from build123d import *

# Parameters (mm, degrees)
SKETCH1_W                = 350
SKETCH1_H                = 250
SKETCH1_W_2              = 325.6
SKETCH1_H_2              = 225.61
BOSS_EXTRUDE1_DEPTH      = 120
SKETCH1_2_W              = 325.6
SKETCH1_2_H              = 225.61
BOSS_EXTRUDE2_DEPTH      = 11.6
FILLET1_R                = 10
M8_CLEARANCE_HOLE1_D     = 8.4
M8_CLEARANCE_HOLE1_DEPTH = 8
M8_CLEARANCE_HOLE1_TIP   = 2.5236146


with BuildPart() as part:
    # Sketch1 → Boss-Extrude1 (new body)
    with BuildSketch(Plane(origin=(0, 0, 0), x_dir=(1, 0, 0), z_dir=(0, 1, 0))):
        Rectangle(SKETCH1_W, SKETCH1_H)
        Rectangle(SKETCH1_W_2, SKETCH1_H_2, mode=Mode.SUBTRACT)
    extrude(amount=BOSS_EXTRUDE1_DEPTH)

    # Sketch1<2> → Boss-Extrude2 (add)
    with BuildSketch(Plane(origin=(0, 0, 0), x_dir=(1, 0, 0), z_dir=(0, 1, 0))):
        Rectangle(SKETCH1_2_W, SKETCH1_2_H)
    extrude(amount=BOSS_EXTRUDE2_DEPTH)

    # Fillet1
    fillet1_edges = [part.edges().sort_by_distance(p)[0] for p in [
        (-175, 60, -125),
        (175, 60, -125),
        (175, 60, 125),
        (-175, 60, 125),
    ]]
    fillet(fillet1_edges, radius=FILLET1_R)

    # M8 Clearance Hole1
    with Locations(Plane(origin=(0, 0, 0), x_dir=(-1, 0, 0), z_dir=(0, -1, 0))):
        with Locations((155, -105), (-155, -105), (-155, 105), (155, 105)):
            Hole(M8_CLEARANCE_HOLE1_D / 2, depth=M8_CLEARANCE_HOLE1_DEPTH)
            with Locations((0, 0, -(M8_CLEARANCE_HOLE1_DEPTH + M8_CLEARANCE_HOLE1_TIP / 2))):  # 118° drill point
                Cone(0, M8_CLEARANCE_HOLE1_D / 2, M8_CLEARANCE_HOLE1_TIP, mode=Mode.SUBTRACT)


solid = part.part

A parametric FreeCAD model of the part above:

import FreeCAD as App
import Part
import Sketcher
from FreeCAD import Vector


def edges_at(feature, points):
    """Names of the edges that pass closest to the given points."""
    edges = feature.Shape.Edges
    near = lambda p: min(range(len(edges)), key=lambda i: edges[i].distToShape(Part.Vertex(*p))[0])
    return sorted({f"Edge{near(p) + 1}" for p in points})

doc = App.newDocument("Part")
body = doc.addObject("PartDesign::Body", "Body")

sketch1 = body.newObject("Sketcher::SketchObject", "Sketch")
sketch1.AttachmentSupport = (doc.getObject("XZ_Plane"), [""])
sketch1.MapMode = "FlatFace"
sketch1.addGeometry(Part.LineSegment(Vector(-175, -125, 0), Vector(-175, 125, 0)), False)
sketch1.addGeometry(Part.LineSegment(Vector(-175, 125, 0), Vector(175, 125, 0)), False)
sketch1.addGeometry(Part.LineSegment(Vector(175, 125, 0), Vector(175, -125, 0)), False)
sketch1.addGeometry(Part.LineSegment(Vector(175, -125, 0), Vector(-175, -125, 0)), False)
sketch1.addGeometry(Part.LineSegment(Vector(162.8, 112.805, 0), Vector(-162.8, 112.805, 0)), False)
sketch1.addGeometry(Part.LineSegment(Vector(-162.8, 112.805, 0), Vector(-162.8, -112.805, 0)), False)
sketch1.addGeometry(Part.LineSegment(Vector(-162.8, -112.805, 0), Vector(162.8, -112.805, 0)), False)
sketch1.addGeometry(Part.LineSegment(Vector(162.8, -112.805, 0), Vector(162.8, 112.805, 0)), False)
sketch1.addConstraint(Sketcher.Constraint("Coincident", 0, 2, 1, 1))
sketch1.addConstraint(Sketcher.Constraint("Coincident", 1, 2, 2, 1))
sketch1.addConstraint(Sketcher.Constraint("Coincident", 2, 2, 3, 1))
sketch1.addConstraint(Sketcher.Constraint("Coincident", 3, 2, 0, 1))
sketch1.addConstraint(Sketcher.Constraint("Coincident", 4, 2, 5, 1))
sketch1.addConstraint(Sketcher.Constraint("Coincident", 5, 2, 6, 1))
sketch1.addConstraint(Sketcher.Constraint("Coincident", 6, 2, 7, 1))
sketch1.addConstraint(Sketcher.Constraint("Coincident", 7, 2, 4, 1))
sketch1.addConstraint(Sketcher.Constraint("Vertical", 0))
sketch1.addConstraint(Sketcher.Constraint("Horizontal", 1))
sketch1.addConstraint(Sketcher.Constraint("Vertical", 2))
sketch1.addConstraint(Sketcher.Constraint("Horizontal", 3))
sketch1.addConstraint(Sketcher.Constraint("Horizontal", 4))
sketch1.addConstraint(Sketcher.Constraint("Vertical", 5))
sketch1.addConstraint(Sketcher.Constraint("Horizontal", 6))
sketch1.addConstraint(Sketcher.Constraint("Vertical", 7))
sketch1.addConstraint(Sketcher.Constraint("Symmetric", 0, 2, 2, 2, -1, 1))
sketch1.addConstraint(Sketcher.Constraint("Symmetric", 4, 2, 6, 2, -1, 1))
sketch1.addConstraint(Sketcher.Constraint("DistanceX", 1, 1, 1, 2, 350.0))
sketch1.addConstraint(Sketcher.Constraint("DistanceY", 0, 1, 0, 2, 250.0))
sketch1.addConstraint(Sketcher.Constraint("DistanceX", 4, 2, 4, 1, 325.6))
sketch1.addConstraint(Sketcher.Constraint("DistanceY", 5, 2, 5, 1, 225.61))
pad1 = body.newObject("PartDesign::Pad", "Pad")
pad1.Profile = sketch1
pad1.Length = 120
pad1.Reversed = True

sketch2 = body.newObject("Sketcher::SketchObject", "Sketch001")
sketch2.AttachmentSupport = (doc.getObject("XZ_Plane"), [""])
sketch2.MapMode = "FlatFace"
sketch2.addGeometry(Part.LineSegment(Vector(-162.8, -112.805, 0), Vector(-162.8, 112.805, 0)), False)
sketch2.addGeometry(Part.LineSegment(Vector(-162.8, 112.805, 0), Vector(162.8, 112.805, 0)), False)
sketch2.addGeometry(Part.LineSegment(Vector(162.8, 112.805, 0), Vector(162.8, -112.805, 0)), False)
sketch2.addGeometry(Part.LineSegment(Vector(162.8, -112.805, 0), Vector(-162.8, -112.805, 0)), False)
sketch2.addConstraint(Sketcher.Constraint("Coincident", 0, 2, 1, 1))
sketch2.addConstraint(Sketcher.Constraint("Coincident", 1, 2, 2, 1))
sketch2.addConstraint(Sketcher.Constraint("Coincident", 2, 2, 3, 1))
sketch2.addConstraint(Sketcher.Constraint("Coincident", 3, 2, 0, 1))
sketch2.addConstraint(Sketcher.Constraint("Vertical", 0))
sketch2.addConstraint(Sketcher.Constraint("Horizontal", 1))
sketch2.addConstraint(Sketcher.Constraint("Vertical", 2))
sketch2.addConstraint(Sketcher.Constraint("Horizontal", 3))
sketch2.addConstraint(Sketcher.Constraint("Symmetric", 0, 2, 2, 2, -1, 1))
sketch2.addConstraint(Sketcher.Constraint("DistanceX", 1, 1, 1, 2, 325.6))
sketch2.addConstraint(Sketcher.Constraint("DistanceY", 0, 1, 0, 2, 225.61))
pad2 = body.newObject("PartDesign::Pad", "Pad001")
pad2.Profile = sketch2
pad2.Length = 11.6
pad2.Reversed = True
doc.recompute()

fillet = body.newObject("PartDesign::Fillet", "Fillet")
fillet.Base = (pad2, edges_at(pad2, [
    (-175, 60, -125),
    (175, 60, -125),
    (175, 60, 125),
    (-175, 60, 125),
]))
fillet.Radius = 10

sketch3 = body.newObject("Sketcher::SketchObject", "Sketch002")
sketch3.AttachmentSupport = (doc.getObject("XZ_Plane"), [""])
sketch3.MapMode = "FlatFace"
sketch3.addGeometry(Part.Circle(Vector(-155, 105, 0), Vector(0, 0, 1), 4.2), False)
sketch3.addGeometry(Part.Circle(Vector(155, 105, 0), Vector(0, 0, 1), 4.2), False)
sketch3.addGeometry(Part.Circle(Vector(155, -105, 0), Vector(0, 0, 1), 4.2), False)
sketch3.addGeometry(Part.Circle(Vector(-155, -105, 0), Vector(0, 0, 1), 4.2), False)
sketch3.addConstraint(Sketcher.Constraint("Equal", 0, 1))
sketch3.addConstraint(Sketcher.Constraint("Equal", 1, 2))
sketch3.addConstraint(Sketcher.Constraint("Equal", 2, 3))
sketch3.addConstraint(Sketcher.Constraint("Symmetric", 0, 3, 2, 3, -1, 1))
sketch3.addConstraint(Sketcher.Constraint("Symmetric", 1, 3, 3, 3, -1, 1))
sketch3.addConstraint(Sketcher.Constraint("Symmetric", 0, 3, 1, 3, -2))
sketch3.addConstraint(Sketcher.Constraint("Diameter", 0, 8.4))
sketch3.addConstraint(Sketcher.Constraint("DistanceX", 0, 3, -1, 1, 155.0))
sketch3.addConstraint(Sketcher.Constraint("DistanceY", -1, 1, 0, 3, 105.0))
doc.recompute()
hole = body.newObject("PartDesign::Hole", "Hole")
hole.Profile = sketch3
hole.ThreadType = "None"
hole.Diameter = 8.4
hole.DepthType = "Dimension"
hole.Depth = 8
hole.DrillPoint = "Angled"
hole.DrillPointAngle = 118

doc.recompute()
